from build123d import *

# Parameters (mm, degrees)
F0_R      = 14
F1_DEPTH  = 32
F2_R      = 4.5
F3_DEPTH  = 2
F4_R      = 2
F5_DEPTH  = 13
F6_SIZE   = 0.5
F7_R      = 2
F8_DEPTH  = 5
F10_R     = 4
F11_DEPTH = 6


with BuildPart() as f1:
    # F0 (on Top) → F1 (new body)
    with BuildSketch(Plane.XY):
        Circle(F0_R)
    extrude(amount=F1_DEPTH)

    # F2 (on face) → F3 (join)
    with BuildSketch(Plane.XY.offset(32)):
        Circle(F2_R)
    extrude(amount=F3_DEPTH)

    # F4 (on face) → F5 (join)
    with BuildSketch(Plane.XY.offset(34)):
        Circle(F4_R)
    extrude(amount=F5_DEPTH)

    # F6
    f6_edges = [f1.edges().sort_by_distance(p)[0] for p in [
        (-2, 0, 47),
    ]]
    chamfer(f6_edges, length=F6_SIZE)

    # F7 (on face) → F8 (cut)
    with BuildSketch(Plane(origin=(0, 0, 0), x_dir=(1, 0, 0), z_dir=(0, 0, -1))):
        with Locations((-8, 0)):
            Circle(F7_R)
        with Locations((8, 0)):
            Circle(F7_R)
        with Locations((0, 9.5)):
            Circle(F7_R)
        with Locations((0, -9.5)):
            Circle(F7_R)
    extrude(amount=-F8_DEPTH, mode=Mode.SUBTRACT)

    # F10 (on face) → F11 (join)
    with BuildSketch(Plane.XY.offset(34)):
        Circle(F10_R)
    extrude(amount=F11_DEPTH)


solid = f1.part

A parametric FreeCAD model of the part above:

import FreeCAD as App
import Part
import Sketcher


def edges_at(feature, points):
    """Names of the edges that pass closest to the given points."""
    edges = feature.Shape.Edges
    near = lambda p: min(range(len(edges)), key=lambda i: edges[i].distToShape(Part.Vertex(*p))[0])
    return sorted({f"Edge{near(p) + 1}" for p in points})

doc = App.newDocument("Part")
params = doc.addObject("Spreadsheet::Sheet", "Params")
for row, (alias, value) in enumerate([
    ("sketch1_diameter", "28 mm"),
    ("pad1_length", "32 mm"),
    ("sketch2_diameter", "9 mm"),
    ("pad2_length", "2 mm"),
    ("sketch3_diameter", "4 mm"),
    ("pad3_length", "13 mm"),
    ("chamfer_size", "0.5 mm"),
    ("sketch4_diameter", "4 mm"),
    ("pocket1_length", "5 mm"),
    ("sketch5_diameter", "8 mm"),
    ("pad4_length", "6 mm"),
], start=1):
    params.set(f"A{row}", alias)
    params.set(f"B{row}", "=" + value)
    params.setAlias(f"B{row}", alias)

body = doc.addObject("PartDesign::Body", "Body")

sketch1 = body.newObject("Sketcher::SketchObject", "Sketch")
sketch1.AttachmentSupport = (doc.getObject("XY_Plane"), [""])
sketch1.MapMode = "FlatFace"
sketch1.addGeometry(Part.Circle(App.Vector(0, 0, 0), App.Vector(0, 0, 1), 14), False)
sketch1.addConstraint(Sketcher.Constraint("Coincident", 0, 3, -1, 1))
sketch1.addConstraint(Sketcher.Constraint("Diameter", 0, 28.0))
sketch1.setExpression("Constraints[1]", "Params.sketch1_diameter")
pad1 = body.newObject("PartDesign::Pad", "Pad")
pad1.Profile = sketch1
pad1.setExpression("Length", "Params.pad1_length")

sketch2 = body.newObject("Sketcher::SketchObject", "Sketch001")
sketch2.AttachmentSupport = (doc.getObject("XY_Plane"), [""])
sketch2.MapMode = "FlatFace"
sketch2.AttachmentOffset = App.Placement(App.Vector(0, 0, 32), App.Rotation())
sketch2.addGeometry(Part.Circle(App.Vector(0, 0, 0), App.Vector(0, 0, 1), 4.5), False)
sketch2.addConstraint(Sketcher.Constraint("Coincident", 0, 3, -1, 1))
sketch2.addConstraint(Sketcher.Constraint("Diameter", 0, 9.0))
sketch2.setExpression("Constraints[1]", "Params.sketch2_diameter")
pad2 = body.newObject("PartDesign::Pad", "Pad001")
pad2.Profile = sketch2
pad2.setExpression("Length", "Params.pad2_length")

sketch3 = body.newObject("Sketcher::SketchObject", "Sketch002")
sketch3.AttachmentSupport = (doc.getObject("XY_Plane"), [""])
sketch3.MapMode = "FlatFace"
sketch3.AttachmentOffset = App.Placement(App.Vector(0, 0, 34), App.Rotation())
sketch3.addGeometry(Part.Circle(App.Vector(0, 0, 0), App.Vector(0, 0, 1), 2), False)
sketch3.addConstraint(Sketcher.Constraint("Coincident", 0, 3, -1, 1))
sketch3.addConstraint(Sketcher.Constraint("Diameter", 0, 4.0))
sketch3.setExpression("Constraints[1]", "Params.sketch3_diameter")
pad3 = body.newObject("PartDesign::Pad", "Pad002")
pad3.Profile = sketch3
pad3.setExpression("Length", "Params.pad3_length")
doc.recompute()

chamfer = body.newObject("PartDesign::Chamfer", "Chamfer")
chamfer.Base = (pad3, edges_at(pad3, [(-2, 0, 47)]))
chamfer.setExpression("Size", "Params.chamfer_size")

sketch4 = body.newObject("Sketcher::SketchObject", "Sketch003")
sketch4.AttachmentSupport = (doc.getObject("XY_Plane"), [""])
sketch4.MapMode = "FlatFace"
sketch4.addGeometry(Part.Circle(App.Vector(-8, 0, 0), App.Vector(0, 0, 1), 2), False)
sketch4.addGeometry(Part.Circle(App.Vector(8, 0, 0), App.Vector(0, 0, 1), 2), False)
sketch4.addGeometry(Part.Circle(App.Vector(0, -9.5, 0), App.Vector(0, 0, 1), 2), False)
sketch4.addGeometry(Part.Circle(App.Vector(0, 9.5, 0), App.Vector(0, 0, 1), 2), False)
sketch4.addConstraint(Sketcher.Constraint("Equal", 0, 1))
sketch4.addConstraint(Sketcher.Constraint("Equal", 1, 2))
sketch4.addConstraint(Sketcher.Constraint("Equal", 2, 3))
sketch4.addConstraint(Sketcher.Constraint("Symmetric", 0, 3, 1, 3, -1, 1))
sketch4.addConstraint(Sketcher.Constraint("Symmetric", 2, 3, 3, 3, -1, 1))
sketch4.addConstraint(Sketcher.Constraint("PointOnObject", 0, 3, -1))
sketch4.addConstraint(Sketcher.Constraint("PointOnObject", 2, 3, -2))
sketch4.addConstraint(Sketcher.Constraint("Diameter", 0, 4.0))
sketch4.addConstraint(Sketcher.Constraint("DistanceX", 0, 3, -1, 1, 8.0))
sketch4.addConstraint(Sketcher.Constraint("DistanceY", 2, 3, 3, 3, 19.0))
sketch4.setExpression("Constraints[7]", "Params.sketch4_diameter")
pocket1 = body.newObject("PartDesign::Pocket", "Pocket")
pocket1.Profile = sketch4
pocket1.setExpression("Length", "Params.pocket1_length")
pocket1.Reversed = True

sketch5 = body.newObject("Sketcher::SketchObject", "Sketch004")
sketch5.AttachmentSupport = (doc.getObject("XY_Plane"), [""])
sketch5.MapMode = "FlatFace"
sketch5.AttachmentOffset = App.Placement(App.Vector(0, 0, 34), App.Rotation())
sketch5.addGeometry(Part.Circle(App.Vector(0, 0, 0), App.Vector(0, 0, 1), 4), False)
sketch5.addConstraint(Sketcher.Constraint("Coincident", 0, 3, -1, 1))
sketch5.addConstraint(Sketcher.Constraint("Diameter", 0, 8.0))
sketch5.setExpression("Constraints[1]", "Params.sketch5_diameter")
pad4 = body.newObject("PartDesign::Pad", "Pad003")
pad4.Profile = sketch5
pad4.setExpression("Length", "Params.pad4_length")

doc.recompute()
